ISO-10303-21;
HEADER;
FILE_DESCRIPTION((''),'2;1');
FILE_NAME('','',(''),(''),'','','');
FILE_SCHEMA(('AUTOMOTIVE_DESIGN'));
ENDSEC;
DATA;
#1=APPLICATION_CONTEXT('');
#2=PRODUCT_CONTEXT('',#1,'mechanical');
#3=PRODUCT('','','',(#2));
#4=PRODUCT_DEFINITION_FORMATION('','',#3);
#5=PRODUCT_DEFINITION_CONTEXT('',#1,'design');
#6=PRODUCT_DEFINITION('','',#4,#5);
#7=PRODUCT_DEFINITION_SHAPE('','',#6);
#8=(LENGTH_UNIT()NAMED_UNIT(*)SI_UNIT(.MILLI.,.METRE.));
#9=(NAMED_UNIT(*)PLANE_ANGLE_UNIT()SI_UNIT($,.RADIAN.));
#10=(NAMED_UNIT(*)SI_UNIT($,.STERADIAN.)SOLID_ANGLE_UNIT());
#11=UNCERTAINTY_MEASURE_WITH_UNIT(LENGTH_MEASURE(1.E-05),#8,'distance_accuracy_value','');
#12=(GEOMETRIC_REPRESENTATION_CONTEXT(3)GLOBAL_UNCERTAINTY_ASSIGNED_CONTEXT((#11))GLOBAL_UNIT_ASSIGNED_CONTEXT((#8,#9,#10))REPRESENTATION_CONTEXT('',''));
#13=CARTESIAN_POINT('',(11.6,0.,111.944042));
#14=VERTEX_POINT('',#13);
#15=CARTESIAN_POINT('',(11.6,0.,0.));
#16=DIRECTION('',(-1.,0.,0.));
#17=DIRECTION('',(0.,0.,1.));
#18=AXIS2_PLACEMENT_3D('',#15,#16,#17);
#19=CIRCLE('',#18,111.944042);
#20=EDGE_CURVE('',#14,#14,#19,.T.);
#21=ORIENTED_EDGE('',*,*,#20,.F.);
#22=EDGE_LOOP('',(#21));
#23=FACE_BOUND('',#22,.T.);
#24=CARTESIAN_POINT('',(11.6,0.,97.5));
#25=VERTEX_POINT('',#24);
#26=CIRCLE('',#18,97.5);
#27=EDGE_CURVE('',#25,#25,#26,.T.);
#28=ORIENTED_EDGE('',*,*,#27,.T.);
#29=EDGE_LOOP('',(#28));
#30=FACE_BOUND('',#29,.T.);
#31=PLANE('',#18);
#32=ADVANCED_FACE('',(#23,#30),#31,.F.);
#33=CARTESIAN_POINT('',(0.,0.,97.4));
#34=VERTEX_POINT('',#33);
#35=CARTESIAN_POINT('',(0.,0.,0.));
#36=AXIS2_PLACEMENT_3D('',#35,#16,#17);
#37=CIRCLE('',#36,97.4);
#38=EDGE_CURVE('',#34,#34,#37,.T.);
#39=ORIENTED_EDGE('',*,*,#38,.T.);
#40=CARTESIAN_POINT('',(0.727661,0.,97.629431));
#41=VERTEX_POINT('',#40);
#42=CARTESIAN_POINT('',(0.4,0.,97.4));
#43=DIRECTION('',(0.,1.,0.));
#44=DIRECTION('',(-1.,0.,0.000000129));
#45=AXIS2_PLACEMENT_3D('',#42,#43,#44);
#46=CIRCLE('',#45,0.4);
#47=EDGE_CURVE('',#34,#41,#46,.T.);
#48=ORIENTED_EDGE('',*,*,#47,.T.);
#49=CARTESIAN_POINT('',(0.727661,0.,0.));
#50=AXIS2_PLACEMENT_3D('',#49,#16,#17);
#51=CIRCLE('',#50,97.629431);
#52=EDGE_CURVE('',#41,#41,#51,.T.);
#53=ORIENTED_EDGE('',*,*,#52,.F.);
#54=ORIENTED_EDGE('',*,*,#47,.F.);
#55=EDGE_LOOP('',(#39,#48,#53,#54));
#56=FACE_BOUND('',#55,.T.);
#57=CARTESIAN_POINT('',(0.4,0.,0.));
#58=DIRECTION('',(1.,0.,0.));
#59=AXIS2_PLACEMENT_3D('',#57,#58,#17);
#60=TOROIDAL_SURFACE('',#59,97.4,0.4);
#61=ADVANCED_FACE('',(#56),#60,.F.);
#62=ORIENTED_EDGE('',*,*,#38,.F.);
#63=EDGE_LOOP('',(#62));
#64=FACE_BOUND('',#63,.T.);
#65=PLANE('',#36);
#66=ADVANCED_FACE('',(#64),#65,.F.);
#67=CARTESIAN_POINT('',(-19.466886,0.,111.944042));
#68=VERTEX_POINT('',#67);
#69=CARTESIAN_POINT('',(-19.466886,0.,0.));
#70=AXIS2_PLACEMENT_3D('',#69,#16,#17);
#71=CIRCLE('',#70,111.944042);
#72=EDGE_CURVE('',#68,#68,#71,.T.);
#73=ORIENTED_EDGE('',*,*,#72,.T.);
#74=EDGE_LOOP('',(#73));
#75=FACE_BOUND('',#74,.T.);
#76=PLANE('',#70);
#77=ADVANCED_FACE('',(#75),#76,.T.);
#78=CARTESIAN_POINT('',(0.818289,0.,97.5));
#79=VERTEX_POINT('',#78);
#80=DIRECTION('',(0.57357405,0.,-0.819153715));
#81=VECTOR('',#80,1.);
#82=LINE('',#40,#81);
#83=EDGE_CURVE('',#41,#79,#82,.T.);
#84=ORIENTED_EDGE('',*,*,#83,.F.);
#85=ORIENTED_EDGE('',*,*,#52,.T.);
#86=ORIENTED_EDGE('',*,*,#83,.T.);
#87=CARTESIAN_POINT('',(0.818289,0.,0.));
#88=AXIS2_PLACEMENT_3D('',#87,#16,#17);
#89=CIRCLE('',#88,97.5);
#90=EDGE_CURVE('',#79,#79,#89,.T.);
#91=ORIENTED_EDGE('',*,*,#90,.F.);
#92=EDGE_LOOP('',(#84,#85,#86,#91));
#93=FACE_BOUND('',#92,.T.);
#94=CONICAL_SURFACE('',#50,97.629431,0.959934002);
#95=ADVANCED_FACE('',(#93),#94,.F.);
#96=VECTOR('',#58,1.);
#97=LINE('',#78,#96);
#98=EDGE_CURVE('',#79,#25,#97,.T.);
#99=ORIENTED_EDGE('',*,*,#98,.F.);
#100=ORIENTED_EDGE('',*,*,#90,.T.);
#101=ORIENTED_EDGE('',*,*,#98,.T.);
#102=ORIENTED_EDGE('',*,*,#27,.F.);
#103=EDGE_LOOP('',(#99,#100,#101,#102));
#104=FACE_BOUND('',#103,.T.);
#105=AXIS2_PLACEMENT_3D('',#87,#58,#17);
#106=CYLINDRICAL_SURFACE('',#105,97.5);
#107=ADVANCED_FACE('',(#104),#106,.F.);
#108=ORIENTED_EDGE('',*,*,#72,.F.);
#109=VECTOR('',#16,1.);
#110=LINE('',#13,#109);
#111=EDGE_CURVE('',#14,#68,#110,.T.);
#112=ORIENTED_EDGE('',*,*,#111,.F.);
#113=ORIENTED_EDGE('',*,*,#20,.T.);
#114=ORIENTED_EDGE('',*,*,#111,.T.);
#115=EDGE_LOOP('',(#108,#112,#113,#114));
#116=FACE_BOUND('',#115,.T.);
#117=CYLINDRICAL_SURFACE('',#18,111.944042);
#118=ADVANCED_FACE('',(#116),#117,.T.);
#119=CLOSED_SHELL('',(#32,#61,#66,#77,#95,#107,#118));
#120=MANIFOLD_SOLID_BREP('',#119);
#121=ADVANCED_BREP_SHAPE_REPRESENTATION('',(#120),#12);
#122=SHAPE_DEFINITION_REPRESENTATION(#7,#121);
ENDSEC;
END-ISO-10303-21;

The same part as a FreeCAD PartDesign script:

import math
import FreeCAD as App
import Part
import Sketcher

V = App.Vector

doc = App.newDocument("Part")
body = doc.addObject("PartDesign::Body", "Body")

# Sketch on XZ plane
sketch1 = body.newObject("Sketcher::SketchObject", "Sketch")
sketch1.AttachmentSupport = (doc.getObject("XZ_Plane"), [""])
sketch1.MapMode = "FlatFace"
sketch1.addGeometry([
    Part.LineSegment(V(-19.47, 0, 0), V(0, 0, 0)),  # 0
    Part.LineSegment(V(0, 0, 0), V(0, 97.4, 0)),  # 1
    Part.ArcOfCircle(Part.Circle(V(0.4, 97.4, 0), V(0, 0, 1), 0.4), math.radians(35), math.radians(180)),  # 2
    Part.LineSegment(V(0.73, 97.63, 0), V(0.82, 97.5, 0)),  # 3
    Part.LineSegment(V(0.82, 97.5, 0), V(11.6, 97.5, 0)),  # 4
    Part.LineSegment(V(11.6, 97.5, 0), V(11.6, 111.94, 0)),  # 5
    Part.LineSegment(V(11.6, 111.94, 0), V(-19.47, 111.94, 0)),  # 6
    Part.LineSegment(V(-19.47, 111.94, 0), V(-19.47, 0, 0)),  # 7
], False)
sketch1.addConstraint([
    Sketcher.Constraint("Coincident", 0, 2, 1, 1),
    Sketcher.Constraint("Tangent", 1, 2, 2, 2),
    Sketcher.Constraint("Coincident", 2, 1, 3, 1),
    Sketcher.Constraint("Coincident", 3, 2, 4, 1),
    Sketcher.Constraint("Coincident", 4, 2, 5, 1),
    Sketcher.Constraint("Coincident", 5, 2, 6, 1),
    Sketcher.Constraint("Coincident", 6, 2, 7, 1),
    Sketcher.Constraint("Coincident", 7, 2, 0, 1),
    Sketcher.Constraint("Horizontal", 0),
    Sketcher.Constraint("Vertical", 1),
    Sketcher.Constraint("Horizontal", 4),
    Sketcher.Constraint("Vertical", 5),
    Sketcher.Constraint("Horizontal", 6),
    Sketcher.Constraint("Vertical", 7),
    Sketcher.Constraint("Coincident", 0, 2, -1, 1),
    Sketcher.Constraint("Radius", 2, 0.4),
    Sketcher.Constraint("DistanceY", 1, 1, 1, 2, 97.4),
    Sketcher.Constraint("DistanceY", -1, 1, 3, 2, 97.5),
    Sketcher.Constraint("DistanceX", -1, 1, 4, 2, 11.6),
    Sketcher.Constraint("DistanceX", 4, 1, 4, 2, 10.781711),
    Sketcher.Constraint("DistanceY", 5, 1, 5, 2, 14.444042),
    Sketcher.Constraint("DistanceX", 0, 1, 0, 2, 19.466886),
    Sketcher.Constraint("DistanceX", -1, 1, 2, 1, 0.727661),
])
revolution = body.newObject("PartDesign::Revolution", "Revolution")
revolution.Profile = sketch1
revolution.ReferenceAxis = (sketch1, ["H_Axis"])
revolution.Angle = 360

doc.recompute()
